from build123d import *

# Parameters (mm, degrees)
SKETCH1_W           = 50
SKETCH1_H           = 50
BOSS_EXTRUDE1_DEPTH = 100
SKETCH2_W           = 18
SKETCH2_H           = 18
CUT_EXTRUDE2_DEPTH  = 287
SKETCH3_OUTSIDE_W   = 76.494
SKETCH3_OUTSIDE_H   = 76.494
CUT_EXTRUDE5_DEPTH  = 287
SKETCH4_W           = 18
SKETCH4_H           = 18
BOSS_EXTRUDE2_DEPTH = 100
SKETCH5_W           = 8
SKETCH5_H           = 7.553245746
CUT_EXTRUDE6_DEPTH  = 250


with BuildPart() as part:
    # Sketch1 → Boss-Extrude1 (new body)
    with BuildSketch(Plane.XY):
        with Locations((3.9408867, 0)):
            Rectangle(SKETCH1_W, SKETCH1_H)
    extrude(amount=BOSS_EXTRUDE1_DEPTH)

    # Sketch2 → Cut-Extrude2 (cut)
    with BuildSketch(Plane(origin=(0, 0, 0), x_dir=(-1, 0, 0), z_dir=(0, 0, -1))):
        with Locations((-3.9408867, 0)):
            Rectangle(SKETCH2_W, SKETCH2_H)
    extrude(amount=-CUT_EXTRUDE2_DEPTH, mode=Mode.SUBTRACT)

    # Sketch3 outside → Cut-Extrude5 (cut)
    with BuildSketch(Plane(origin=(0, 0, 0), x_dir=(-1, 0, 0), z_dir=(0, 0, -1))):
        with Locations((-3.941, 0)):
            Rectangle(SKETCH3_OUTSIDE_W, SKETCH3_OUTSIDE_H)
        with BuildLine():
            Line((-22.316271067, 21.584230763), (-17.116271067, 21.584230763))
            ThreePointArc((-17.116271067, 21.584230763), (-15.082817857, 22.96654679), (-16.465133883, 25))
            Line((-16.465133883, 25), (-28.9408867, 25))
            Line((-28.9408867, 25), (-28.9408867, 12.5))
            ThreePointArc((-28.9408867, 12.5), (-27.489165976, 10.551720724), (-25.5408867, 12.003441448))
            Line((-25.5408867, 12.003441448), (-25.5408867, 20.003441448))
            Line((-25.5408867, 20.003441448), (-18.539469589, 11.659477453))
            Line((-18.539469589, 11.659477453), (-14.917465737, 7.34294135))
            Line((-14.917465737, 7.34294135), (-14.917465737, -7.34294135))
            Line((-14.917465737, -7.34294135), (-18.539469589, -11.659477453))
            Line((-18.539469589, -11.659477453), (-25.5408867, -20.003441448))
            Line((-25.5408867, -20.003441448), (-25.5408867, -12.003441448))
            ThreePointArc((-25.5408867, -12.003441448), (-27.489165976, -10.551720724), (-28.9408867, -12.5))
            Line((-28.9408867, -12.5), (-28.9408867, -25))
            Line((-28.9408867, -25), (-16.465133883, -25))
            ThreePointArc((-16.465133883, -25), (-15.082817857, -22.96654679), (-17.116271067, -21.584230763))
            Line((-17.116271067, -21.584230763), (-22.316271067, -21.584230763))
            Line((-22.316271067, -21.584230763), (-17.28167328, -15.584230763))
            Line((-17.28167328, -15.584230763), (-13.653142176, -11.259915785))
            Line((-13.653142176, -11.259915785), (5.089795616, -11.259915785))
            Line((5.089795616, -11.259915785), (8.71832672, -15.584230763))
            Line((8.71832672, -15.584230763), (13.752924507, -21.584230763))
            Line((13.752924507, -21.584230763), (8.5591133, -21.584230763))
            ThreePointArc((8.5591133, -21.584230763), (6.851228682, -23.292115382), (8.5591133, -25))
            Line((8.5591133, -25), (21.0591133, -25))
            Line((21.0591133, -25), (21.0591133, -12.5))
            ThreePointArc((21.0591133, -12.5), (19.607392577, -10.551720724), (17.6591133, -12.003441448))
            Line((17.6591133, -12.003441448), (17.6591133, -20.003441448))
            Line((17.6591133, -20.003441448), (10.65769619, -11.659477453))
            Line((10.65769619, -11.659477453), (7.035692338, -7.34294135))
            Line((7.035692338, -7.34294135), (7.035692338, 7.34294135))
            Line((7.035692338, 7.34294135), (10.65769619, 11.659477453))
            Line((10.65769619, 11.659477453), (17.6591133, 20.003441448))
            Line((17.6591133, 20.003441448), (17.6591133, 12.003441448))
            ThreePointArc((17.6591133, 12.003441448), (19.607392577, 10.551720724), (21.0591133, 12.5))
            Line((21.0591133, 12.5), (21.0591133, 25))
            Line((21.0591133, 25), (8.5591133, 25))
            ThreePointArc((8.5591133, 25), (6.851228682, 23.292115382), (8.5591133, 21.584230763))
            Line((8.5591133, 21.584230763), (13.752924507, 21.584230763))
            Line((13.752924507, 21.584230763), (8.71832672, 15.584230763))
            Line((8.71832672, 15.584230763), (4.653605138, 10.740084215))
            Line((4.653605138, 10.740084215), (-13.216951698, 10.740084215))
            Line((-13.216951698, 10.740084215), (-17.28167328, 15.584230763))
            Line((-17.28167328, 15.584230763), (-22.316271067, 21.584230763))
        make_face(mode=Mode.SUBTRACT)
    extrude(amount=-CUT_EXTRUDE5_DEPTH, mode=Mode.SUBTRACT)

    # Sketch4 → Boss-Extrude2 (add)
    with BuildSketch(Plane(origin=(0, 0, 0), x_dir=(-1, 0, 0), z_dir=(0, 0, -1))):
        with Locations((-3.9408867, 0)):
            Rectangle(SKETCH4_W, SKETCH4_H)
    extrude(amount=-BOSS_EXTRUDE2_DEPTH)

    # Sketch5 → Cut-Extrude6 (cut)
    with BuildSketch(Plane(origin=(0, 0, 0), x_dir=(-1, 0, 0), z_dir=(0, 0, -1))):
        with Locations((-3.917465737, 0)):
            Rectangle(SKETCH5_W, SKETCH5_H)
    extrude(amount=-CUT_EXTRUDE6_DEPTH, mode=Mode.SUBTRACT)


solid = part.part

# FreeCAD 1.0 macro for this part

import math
import FreeCAD as App
import Part
import Sketcher
from FreeCAD import Vector
Q = App.Units.Quantity

doc = App.newDocument("Part")
params = doc.addObject("Spreadsheet::Sheet", "Params")
for row, (alias, value) in enumerate([
    ("sketch1_width", "50 mm"),
    ("pad1_length", "100 mm"),
    ("sketch2_width", "18 mm"),
    ("pocket1_length", "287 mm"),
    ("sketch3_height", "8 mm"),
    ("sketch3_width", "5.2 mm"),
    ("sketch3_width2", "12.5 mm"),
    ("sketch3_width3", "1.7 mm"),
    ("pocket2_length", "287 mm"),
    ("sketch4_width", "18 mm"),
    ("pad2_length", "100 mm"),
    ("sketch5_width", "8 mm"),
    ("pocket3_length", "250 mm"),
], start=1):
    params.set(f"A{row}", alias)
    params.set(f"B{row}", "=" + value)
    params.setAlias(f"B{row}", alias)

body = doc.addObject("PartDesign::Body", "Body")

# Sketch on XY plane
sketch1 = body.newObject("Sketcher::SketchObject", "Sketch")
sketch1.AttachmentSupport = (doc.getObject("XY_Plane"), [""])
sketch1.MapMode = "FlatFace"
sketch1.addGeometry([
    Part.LineSegment(Vector(-21, 25, 0), Vector(-21, -25, 0)),
    Part.LineSegment(Vector(-21, -25, 0), Vector(29, -25, 0)),
    Part.LineSegment(Vector(29, -25, 0), Vector(29, 25, 0)),
    Part.LineSegment(Vector(29, 25, 0), Vector(-21, 25, 0)),
], False)
sketch1.addConstraint([
    Sketcher.Constraint("Coincident", 0, 2, 1, 1),
    Sketcher.Constraint("Coincident", 1, 2, 2, 1),
    Sketcher.Constraint("Coincident", 2, 2, 3, 1),
    Sketcher.Constraint("Coincident", 3, 2, 0, 1),
    Sketcher.Constraint("Vertical", 0),
    Sketcher.Constraint("Horizontal", 1),
    Sketcher.Constraint("Vertical", 2),
    Sketcher.Constraint("Horizontal", 3),
    Sketcher.Constraint("Equal", 3, 0),
    Sketcher.Constraint("DistanceX", 1, 1, 1, 2, 50.0),
    Sketcher.Constraint("DistanceY", 0, 2, -1, 1, 25.0),
    Sketcher.Constraint("DistanceX", 0, 2, -1, 1, 21.059113),
])
sketch1.setExpression("Constraints[9]", "Params.sketch1_width")
pad1 = body.newObject("PartDesign::Pad", "Pad")
pad1.Profile = sketch1
pad1.setExpression("Length", "Params.pad1_length")

# Sketch on XY plane
sketch2 = body.newObject("Sketcher::SketchObject", "Sketch001")
sketch2.AttachmentSupport = (doc.getObject("XY_Plane"), [""])
sketch2.MapMode = "FlatFace"
sketch2.addGeometry([
    Part.LineSegment(Vector(13, 9, 0), Vector(13, -9, 0)),
    Part.LineSegment(Vector(13, -9, 0), Vector(-5, -9, 0)),
    Part.LineSegment(Vector(-5, -9, 0), Vector(-5, 9, 0)),
    Part.LineSegment(Vector(-5, 9, 0), Vector(13, 9, 0)),
], False)
sketch2.addConstraint([
    Sketcher.Constraint("Coincident", 0, 2, 1, 1),
    Sketcher.Constraint("Coincident", 1, 2, 2, 1),
    Sketcher.Constraint("Coincident", 2, 2, 3, 1),
    Sketcher.Constraint("Coincident", 3, 2, 0, 1),
    Sketcher.Constraint("Vertical", 0),
    Sketcher.Constraint("Horizontal", 1),
    Sketcher.Constraint("Vertical", 2),
    Sketcher.Constraint("Horizontal", 3),
    Sketcher.Constraint("Equal", 3, 0),
    Sketcher.Constraint("DistanceX", 1, 2, 1, 1, 18.0),
    Sketcher.Constraint("DistanceY", 0, 2, -1, 1, 9.0),
    Sketcher.Constraint("DistanceX", -1, 1, 0, 2, 12.940887),
])
sketch2.setExpression("Constraints[9]", "Params.sketch2_width")
pocket1 = body.newObject("PartDesign::Pocket", "Pocket")
pocket1.Profile = sketch2
pocket1.setExpression("Length", "Params.pocket1_length")
pocket1.Reversed = True

# Sketch on XY plane
sketch3 = body.newObject("Sketcher::SketchObject", "Sketch002")
sketch3.AttachmentSupport = (doc.getObject("XY_Plane"), [""])
sketch3.MapMode = "FlatFace"
sketch3.addGeometry([
    Part.LineSegment(Vector(42.2, 38.2, 0), Vector(42.2, -38.2, 0)),  # 0
    Part.LineSegment(Vector(42.2, -38.2, 0), Vector(-34.3, -38.2, 0)),  # 1
    Part.LineSegment(Vector(-34.3, -38.2, 0), Vector(-34.3, 38.2, 0)),  # 2
    Part.LineSegment(Vector(-34.3, 38.2, 0), Vector(42.2, 38.2, 0)),  # 3
    Part.LineSegment(Vector(17.1, 21.6, 0), Vector(22.3, 21.6, 0)),  # 4
    Part.LineSegment(Vector(22.3, 21.6, 0), Vector(17.3, 15.6, 0)),  # 5
    Part.LineSegment(Vector(17.3, 15.6, 0), Vector(13.2, 10.7, 0)),  # 6
    Part.LineSegment(Vector(13.2, 10.7, 0), Vector(-4.7, 10.7, 0)),  # 7
    Part.LineSegment(Vector(-4.7, 10.7, 0), Vector(-8.7, 15.6, 0)),  # 8
    Part.LineSegment(Vector(-8.7, 15.6, 0), Vector(-13.8, 21.6, 0)),  # 9
    Part.LineSegment(Vector(-13.8, 21.6, 0), Vector(-8.6, 21.6, 0)),  # 10
    Part.ArcOfCircle(Part.Circle(Vector(-8.6, 23.3, 0), Vector(0, 0, 1), 1.7), math.radians(-90), math.radians(90)),  # 11
    Part.LineSegment(Vector(-8.6, 25, 0), Vector(-21.1, 25, 0)),  # 12
    Part.LineSegment(Vector(-21.1, 25, 0), Vector(-21.1, 12.5, 0)),  # 13
    Part.ArcOfCircle(Part.Circle(Vector(-19.4, 12.3, 0), Vector(0, 0, 1), 1.7), math.radians(172), math.radians(352)),  # 14
    Part.LineSegment(Vector(-17.7, 12, 0), Vector(-17.7, 20, 0)),  # 15
    Part.LineSegment(Vector(-17.7, 20, 0), Vector(-10.7, 11.7, 0)),  # 16
    Part.LineSegment(Vector(-10.7, 11.7, 0), Vector(-7, 7.3, 0)),  # 17
    Part.LineSegment(Vector(-7, 7.3, 0), Vector(-7, -7.3, 0)),  # 18
    Part.LineSegment(Vector(-7, -7.3, 0), Vector(-10.7, -11.7, 0)),  # 19
    Part.LineSegment(Vector(-10.7, -11.7, 0), Vector(-17.7, -20, 0)),  # 20
    Part.LineSegment(Vector(-17.7, -20, 0), Vector(-17.7, -12, 0)),  # 21
    Part.ArcOfCircle(Part.Circle(Vector(-19.4, -12.3, 0), Vector(0, 0, 1), 1.7), math.radians(8), math.radians(188)),  # 22
    Part.LineSegment(Vector(-21.1, -12.5, 0), Vector(-21.1, -25, 0)),  # 23
    Part.LineSegment(Vector(-21.1, -25, 0), Vector(-8.6, -25, 0)),  # 24
    Part.ArcOfCircle(Part.Circle(Vector(-8.6, -23.3, 0), Vector(0, 0, 1), 1.7), math.radians(-90), math.radians(90)),  # 25
    Part.LineSegment(Vector(-8.6, -21.6, 0), Vector(-13.8, -21.6, 0)),  # 26
    Part.LineSegment(Vector(-13.8, -21.6, 0), Vector(-8.7, -15.6, 0)),  # 27
    Part.LineSegment(Vector(-8.7, -15.6, 0), Vector(-5.1, -11.3, 0)),  # 28
    Part.LineSegment(Vector(-5.1, -11.3, 0), Vector(13.7, -11.3, 0)),  # 29
    Part.LineSegment(Vector(13.7, -11.3, 0), Vector(17.3, -15.6, 0)),  # 30
    Part.LineSegment(Vector(17.3, -15.6, 0), Vector(22.3, -21.6, 0)),  # 31
    Part.LineSegment(Vector(22.3, -21.6, 0), Vector(17.1, -21.6, 0)),  # 32
    Part.ArcOfCircle(Part.Circle(Vector(16.8, -23.3, 0), Vector(0, 0, 1), 1.7), math.radians(79), math.radians(259)),  # 33
    Part.LineSegment(Vector(16.5, -25, 0), Vector(28.9, -25, 0)),  # 34
    Part.LineSegment(Vector(28.9, -25, 0), Vector(28.9, -12.5, 0)),  # 35
    Part.ArcOfCircle(Part.Circle(Vector(27.2, -12.3, 0), Vector(0, 0, 1), 1.7), math.radians(-8), math.radians(172)),  # 36
    Part.LineSegment(Vector(25.5, -12, 0), Vector(25.5, -20, 0)),  # 37
    Part.LineSegment(Vector(25.5, -20, 0), Vector(18.5, -11.7, 0)),  # 38
    Part.LineSegment(Vector(18.5, -11.7, 0), Vector(14.9, -7.3, 0)),  # 39
    Part.LineSegment(Vector(14.9, -7.3, 0), Vector(14.9, 7.3, 0)),  # 40
    Part.LineSegment(Vector(14.9, 7.3, 0), Vector(18.5, 11.7, 0)),  # 41
    Part.LineSegment(Vector(18.5, 11.7, 0), Vector(25.5, 20, 0)),  # 42
    Part.LineSegment(Vector(25.5, 20, 0), Vector(25.5, 12, 0)),  # 43
    Part.ArcOfCircle(Part.Circle(Vector(27.2, 12.3, 0), Vector(0, 0, 1), 1.7), math.radians(-172), math.radians(8)),  # 44
    Part.LineSegment(Vector(28.9, 12.5, 0), Vector(28.9, 25, 0)),  # 45
    Part.LineSegment(Vector(28.9, 25, 0), Vector(16.5, 25, 0)),  # 46
    Part.ArcOfCircle(Part.Circle(Vector(16.8, 23.3, 0), Vector(0, 0, 1), 1.7), math.radians(101), math.radians(281)),  # 47
], False)
sketch3.addConstraint([
    Sketcher.Constraint("Coincident", 0, 2, 1, 1),
    Sketcher.Constraint("Coincident", 1, 2, 2, 1),
    Sketcher.Constraint("Coincident", 2, 2, 3, 1),
    Sketcher.Constraint("Coincident", 3, 2, 0, 1),
    Sketcher.Constraint("Coincident", 4, 2, 5, 1),
    Sketcher.Constraint("Coincident", 5, 2, 6, 1),
    Sketcher.Constraint("Coincident", 6, 2, 7, 1),
    Sketcher.Constraint("Coincident", 7, 2, 8, 1),
    Sketcher.Constraint("Coincident", 8, 2, 9, 1),
    Sketcher.Constraint("Coincident", 9, 2, 10, 1),
    Sketcher.Constraint("Tangent", 10, 2, 11, 1),
    Sketcher.Constraint("Tangent", 11, 2, 12, 1),
    Sketcher.Constraint("Coincident", 12, 2, 13, 1),
    Sketcher.Constraint("Coincident", 13, 2, 14, 1),
    Sketcher.Constraint("Coincident", 14, 2, 15, 1),
    Sketcher.Constraint("Coincident", 15, 2, 16, 1),
    Sketcher.Constraint("Coincident", 16, 2, 17, 1),
    Sketcher.Constraint("Coincident", 17, 2, 18, 1),
    Sketcher.Constraint("Coincident", 18, 2, 19, 1),
    Sketcher.Constraint("Coincident", 19, 2, 20, 1),
    Sketcher.Constraint("Coincident", 20, 2, 21, 1),
    Sketcher.Constraint("Coincident", 21, 2, 22, 1),
    Sketcher.Constraint("Coincident", 22, 2, 23, 1),
    Sketcher.Constraint("Coincident", 23, 2, 24, 1),
    Sketcher.Constraint("Tangent", 24, 2, 25, 1),
    Sketcher.Constraint("Tangent", 25, 2, 26, 1),
    Sketcher.Constraint("Coincident", 26, 2, 27, 1),
    Sketcher.Constraint("Coincident", 27, 2, 28, 1),
    Sketcher.Constraint("Coincident", 28, 2, 29, 1),
    Sketcher.Constraint("Coincident", 29, 2, 30, 1),
    Sketcher.Constraint("Coincident", 30, 2, 31, 1),
    Sketcher.Constraint("Coincident", 31, 2, 32, 1),
    Sketcher.Constraint("Coincident", 32, 2, 33, 1),
    Sketcher.Constraint("Coincident", 33, 2, 34, 1),
    Sketcher.Constraint("Coincident", 34, 2, 35, 1),
    Sketcher.Constraint("Coincident", 35, 2, 36, 1),
    Sketcher.Constraint("Coincident", 36, 2, 37, 1),
    Sketcher.Constraint("Coincident", 37, 2, 38, 1),
    Sketcher.Constraint("Coincident", 38, 2, 39, 1),
    Sketcher.Constraint("Coincident", 39, 2, 40, 1),
    Sketcher.Constraint("Coincident", 40, 2, 41, 1),
    Sketcher.Constraint("Coincident", 41, 2, 42, 1),
    Sketcher.Constraint("Coincident", 42, 2, 43, 1),
    Sketcher.Constraint("Coincident", 43, 2, 44, 1),
    Sketcher.Constraint("Coincident", 44, 2, 45, 1),
    Sketcher.Constraint("Coincident", 45, 2, 46, 1),
    Sketcher.Constraint("Coincident", 46, 2, 47, 1),
    Sketcher.Constraint("Coincident", 47, 2, 4, 1),
    Sketcher.Constraint("Vertical", 0),
    Sketcher.Constraint("Horizontal", 1),
    Sketcher.Constraint("Vertical", 2),
    Sketcher.Constraint("Horizontal", 3),
    Sketcher.Constraint("Horizontal", 4),
    Sketcher.Constraint("Horizontal", 7),
    Sketcher.Constraint("Horizontal", 10),
    Sketcher.Constraint("Horizontal", 12),
    Sketcher.Constraint("Vertical", 13),
    Sketcher.Constraint("Vertical", 15),
    Sketcher.Constraint("Vertical", 18),
    Sketcher.Constraint("Vertical", 21),
    Sketcher.Constraint("Vertical", 23),
    Sketcher.Constraint("Horizontal", 24),
    Sketcher.Constraint("Horizontal", 26),
    Sketcher.Constraint("Horizontal", 29),
    Sketcher.Constraint("Horizontal", 32),
    Sketcher.Constraint("Horizontal", 34),
    Sketcher.Constraint("Vertical", 35),
    Sketcher.Constraint("Vertical", 37),
    Sketcher.Constraint("Vertical", 40),
    Sketcher.Constraint("Vertical", 43),
    Sketcher.Constraint("Vertical", 45),
    Sketcher.Constraint("Horizontal", 46),
    Sketcher.Constraint("Equal", 14, 22),
    Sketcher.Constraint("Equal", 11, 25),
    Sketcher.Constraint("Equal", 22, 36),
    Sketcher.Constraint("Equal", 36, 44),
    Sketcher.Constraint("Equal", 33, 47),
    Sketcher.Constraint("Symmetric", 14, 3, 22, 3, -1),
    Sketcher.Constraint("Symmetric", 11, 3, 25, 3, -1),
    Sketcher.Constraint("Symmetric", 36, 3, 44, 3, -1),
    Sketcher.Constraint("Symmetric", 33, 3, 47, 3, -1),
    Sketcher.Constraint("Symmetric", 16, 2, 19, 2, -1),
    Sketcher.Constraint("Symmetric", 15, 2, 20, 2, -1),
    Sketcher.Constraint("Symmetric", 8, 2, 27, 2, -1),
    Sketcher.Constraint("Symmetric", 5, 2, 30, 2, -1),
    Sketcher.Constraint("Symmetric", 4, 2, 31, 2, -1),
    Sketcher.Constraint("Symmetric", 38, 2, 41, 2, -1),
    Sketcher.Constraint("Symmetric", 37, 2, 42, 2, -1),
    Sketcher.Constraint("Symmetric", 34, 2, 45, 2, -1),
    Sketcher.Constraint("Parallel", 5, 6),
    Sketcher.Constraint("Parallel", 8, 9),
    Sketcher.Constraint("Parallel", 9, 16),
    Sketcher.Constraint("Parallel", 16, 17),
    Sketcher.Constraint("Parallel", 6, 19),
    Sketcher.Constraint("Parallel", 19, 20),
    Sketcher.Constraint("Parallel", 20, 27),
    Sketcher.Constraint("Parallel", 27, 28),
    Sketcher.Constraint("Parallel", 17, 30),
    Sketcher.Constraint("Parallel", 31, 38),
    Sketcher.Constraint("Parallel", 38, 39),
    Sketcher.Constraint("Parallel", 28, 41),
    Sketcher.Constraint("Horizontal", 25, 3, 33, 3),
    Sketcher.Constraint("Horizontal", 22, 3, 36, 3),
    Sketcher.Constraint("Horizontal", 5, 2, 8, 2),
    Sketcher.Constraint("Horizontal", 4, 2, 9, 2),
    Sketcher.Constraint("Horizontal", 24, 2, 33, 2),
    Sketcher.Constraint("Horizontal", 22, 2, 35, 2),
    Sketcher.Constraint("Horizontal", 21, 2, 36, 2),
    Sketcher.Constraint("Horizontal", 20, 2, 37, 2),
    Sketcher.Constraint("Horizontal", 19, 2, 38, 2),
    Sketcher.Constraint("Horizontal", 18, 2, 39, 2),
    Sketcher.Constraint("Horizontal", 13, 2, 44, 2),
    Sketcher.Constraint("Equal", 3, 0),
    Sketcher.Constraint("Equal", 24, 13),
    Sketcher.Constraint("DistanceY", 15, 1, 15, 2, 8.0),
    Sketcher.Constraint("Angle", 5, Q("-130 deg")),
    Sketcher.Constraint("DistanceX", 4, 1, 4, 2, 5.2),
    Sketcher.Constraint("DistanceX", 12, 2, 12, 1, 12.5),
    Sketcher.Constraint("DistanceY", -1, 1, 11, 2, 25.0),
    Sketcher.Constraint("DistanceY", 5, 2, 4, 2, 6.0),
    Sketcher.Constraint("DistanceX", 8, 2, 5, 2, 26.0),
    Sketcher.Constraint("DistanceY", 29, 2, 6, 2, 22.0),
    Sketcher.Constraint("DistanceX", 14, 3, 11, 3, 10.8),
    Sketcher.Constraint("DistanceX", 25, 3, 36, 3, 35.8),
    Sketcher.Constraint("DistanceX", 14, 3, 14, 2, 1.7),
    Sketcher.Constraint("DistanceX", 1, 2, 1, 1, 76.494),
    Sketcher.Constraint("Radius", 33, 1.738639),
    Sketcher.Constraint("DistanceX", -1, 1, 0, 2, 42.188),
    Sketcher.Constraint("DistanceY", 0, 2, -1, 1, 38.247),
    Sketcher.Constraint("Radius", 11, 1.707885),
    Sketcher.Constraint("Radius", 14, 1.718035),
    Sketcher.Constraint("DistanceX", 10, 1, 10, 2, 5.193811),
    Sketcher.Constraint("DistanceY", 17, 2, 14, 2, 4.6605),
    Sketcher.Constraint("DistanceX", 19, 2, 28, 2, 5.567901),
    Sketcher.Constraint("DistanceY", 25, 3, 28, 2, 12.0322),
    Sketcher.Constraint("DistanceX", -1, 1, 4, 2, 22.316271),
])
sketch3.setExpression("Constraints[114]", "Params.sketch3_height")
sketch3.setExpression("Constraints[116]", "Params.sketch3_width")
sketch3.setExpression("Constraints[117]", "Params.sketch3_width2")
sketch3.setExpression("Constraints[124]", "Params.sketch3_width3")
pocket2 = body.newObject("PartDesign::Pocket", "Pocket001")
pocket2.Profile = sketch3
pocket2.setExpression("Length", "Params.pocket2_length")
pocket2.Reversed = True

# Sketch on XY plane
sketch4 = body.newObject("Sketcher::SketchObject", "Sketch003")
sketch4.AttachmentSupport = (doc.getObject("XY_Plane"), [""])
sketch4.MapMode = "FlatFace"
sketch4.addGeometry([
    Part.LineSegment(Vector(13, 9, 0), Vector(13, -9, 0)),
    Part.LineSegment(Vector(13, -9, 0), Vector(-5, -9, 0)),
    Part.LineSegment(Vector(-5, -9, 0), Vector(-5, 9, 0)),
    Part.LineSegment(Vector(-5, 9, 0), Vector(13, 9, 0)),
], False)
sketch4.addConstraint([
    Sketcher.Constraint("Coincident", 0, 2, 1, 1),
    Sketcher.Constraint("Coincident", 1, 2, 2, 1),
    Sketcher.Constraint("Coincident", 2, 2, 3, 1),
    Sketcher.Constraint("Coincident", 3, 2, 0, 1),
    Sketcher.Constraint("Vertical", 0),
    Sketcher.Constraint("Horizontal", 1),
    Sketcher.Constraint("Vertical", 2),
    Sketcher.Constraint("Horizontal", 3),
    Sketcher.Constraint("Equal", 3, 0),
    Sketcher.Constraint("DistanceX", 1, 2, 1, 1, 18.0),
    Sketcher.Constraint("DistanceY", 0, 2, -1, 1, 9.0),
    Sketcher.Constraint("DistanceX", -1, 1, 0, 2, 12.940887),
])
sketch4.setExpression("Constraints[9]", "Params.sketch4_width")
pad2 = body.newObject("PartDesign::Pad", "Pad001")
pad2.Profile = sketch4
pad2.setExpression("Length", "Params.pad2_length")

# Sketch on XY plane
sketch5 = body.newObject("Sketcher::SketchObject", "Sketch004")
sketch5.AttachmentSupport = (doc.getObject("XY_Plane"), [""])
sketch5.MapMode = "FlatFace"
sketch5.addGeometry([
    Part.LineSegment(Vector(8, 4, 0), Vector(8, -4, 0)),
    Part.LineSegment(Vector(8, -4, 0), Vector(0, -4, 0)),
    Part.LineSegment(Vector(0, -4, 0), Vector(0, 4, 0)),
    Part.LineSegment(Vector(0, 4, 0), Vector(8, 4, 0)),
], False)
sketch5.addConstraint([
    Sketcher.Constraint("Coincident", 0, 2, 1, 1),
    Sketcher.Constraint("Coincident", 1, 2, 2, 1),
    Sketcher.Constraint("Coincident", 2, 2, 3, 1),
    Sketcher.Constraint("Coincident", 3, 2, 0, 1),
    Sketcher.Constraint("Vertical", 0),
    Sketcher.Constraint("Horizontal", 1),
    Sketcher.Constraint("Vertical", 2),
    Sketcher.Constraint("Horizontal", 3),
    Sketcher.Constraint("DistanceX", 1, 2, 1, 1, 8.0),
    Sketcher.Constraint("DistanceY", 0, 2, 0, 1, 7.553246),
    Sketcher.Constraint("DistanceX", -1, 1, 0, 2, 7.917466),
    Sketcher.Constraint("DistanceY", 0, 2, -1, 1, 3.776623),
])
sketch5.setExpression("Constraints[8]", "Params.sketch5_width")
pocket3 = body.newObject("PartDesign::Pocket", "Pocket002")
pocket3.Profile = sketch5
pocket3.setExpression("Length", "Params.pocket3_length")
pocket3.Reversed = True

doc.recompute()
